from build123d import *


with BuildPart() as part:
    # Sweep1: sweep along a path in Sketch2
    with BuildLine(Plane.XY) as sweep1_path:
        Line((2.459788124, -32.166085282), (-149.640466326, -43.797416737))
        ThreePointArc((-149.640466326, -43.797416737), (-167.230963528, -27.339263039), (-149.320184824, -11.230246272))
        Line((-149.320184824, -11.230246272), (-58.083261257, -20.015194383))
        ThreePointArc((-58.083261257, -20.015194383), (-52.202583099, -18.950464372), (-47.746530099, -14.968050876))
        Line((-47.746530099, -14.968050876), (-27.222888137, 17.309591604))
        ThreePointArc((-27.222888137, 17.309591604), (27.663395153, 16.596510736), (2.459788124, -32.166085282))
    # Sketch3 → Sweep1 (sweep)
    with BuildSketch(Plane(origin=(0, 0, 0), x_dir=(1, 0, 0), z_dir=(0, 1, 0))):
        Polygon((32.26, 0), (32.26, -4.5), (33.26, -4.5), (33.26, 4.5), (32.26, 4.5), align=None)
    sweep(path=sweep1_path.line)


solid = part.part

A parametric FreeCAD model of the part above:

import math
import FreeCAD as App
import Part
import Sketcher
Q = App.Units.Quantity

doc = App.newDocument("Part")
body = doc.addObject("PartDesign::Body", "Body")

# Sketch on XZ plane
sketch1 = body.newObject("Sketcher::SketchObject", "Sketch")
sketch1.AttachmentSupport = (doc.getObject("XZ_Plane"), [""])
sketch1.MapMode = "FlatFace"
sketch1.addGeometry(Part.LineSegment(App.Vector(32.3, 4.5, 0), App.Vector(33.3, 4.5, 0)), False)
sketch1.addGeometry(Part.LineSegment(App.Vector(33.3, 4.5, 0), App.Vector(33.3, -4.5, 0)), False)
sketch1.addGeometry(Part.LineSegment(App.Vector(33.3, -4.5, 0), App.Vector(32.3, -4.5, 0)), False)
sketch1.addGeometry(Part.LineSegment(App.Vector(32.3, -4.5, 0), App.Vector(32.3, 4.5, 0)), False)
sketch1.addConstraint(Sketcher.Constraint("Coincident", 0, 2, 1, 1))
sketch1.addConstraint(Sketcher.Constraint("Coincident", 1, 2, 2, 1))
sketch1.addConstraint(Sketcher.Constraint("Coincident", 2, 2, 3, 1))
sketch1.addConstraint(Sketcher.Constraint("Coincident", 3, 2, 0, 1))
sketch1.addConstraint(Sketcher.Constraint("Horizontal", 0))
sketch1.addConstraint(Sketcher.Constraint("Vertical", 1))
sketch1.addConstraint(Sketcher.Constraint("Horizontal", 2))
sketch1.addConstraint(Sketcher.Constraint("Vertical", 3))
sketch1.addConstraint(Sketcher.Constraint("DistanceX", 0, 1, 0, 2, Q("1 mm")))
sketch1.addConstraint(Sketcher.Constraint("DistanceY", 1, 2, 1, 1, Q("9 mm")))
sketch1.addConstraint(Sketcher.Constraint("DistanceY", -1, 1, 0, 2, Q("4.5 mm")))
sketch1.addConstraint(Sketcher.Constraint("DistanceX", -1, 1, 0, 2, Q("33.26 mm")))

# Sketch on XY plane
sketch2 = body.newObject("Sketcher::SketchObject", "Sketch001")
sketch2.AttachmentSupport = (doc.getObject("XY_Plane"), [""])
sketch2.MapMode = "FlatFace"
sketch2.addGeometry(Part.LineSegment(App.Vector(2, -32, 0), App.Vector(-150, -44, 0)), False)
sketch2.addGeometry(Part.ArcOfCircle(Part.Circle(App.Vector(-151, -28, 0), App.Vector(0, 0, 1), 16), math.radians(85), math.radians(274)), False)
sketch2.addGeometry(Part.LineSegment(App.Vector(-149, -11, 0), App.Vector(-58, -20, 0)), False)
sketch2.addGeometry(Part.ArcOfCircle(Part.Circle(App.Vector(-57, -9, 0), App.Vector(0, 0, 1), 11), math.radians(-95), math.radians(-32)), False)
sketch2.addGeometry(Part.LineSegment(App.Vector(-48, -15, 0), App.Vector(-27, 17, 0)), False)
sketch2.addGeometry(Part.ArcOfCircle(Part.Circle(App.Vector(0, 0, 0), App.Vector(0, 0, 1), 32), math.radians(-86), math.radians(148)), False)
sketch2.addConstraint(Sketcher.Constraint("Tangent", 0, 2, 1, 2))
sketch2.addConstraint(Sketcher.Constraint("Tangent", 1, 1, 2, 1))
sketch2.addConstraint(Sketcher.Constraint("Tangent", 2, 2, 3, 1))
sketch2.addConstraint(Sketcher.Constraint("Tangent", 3, 2, 4, 1))
sketch2.addConstraint(Sketcher.Constraint("Tangent", 4, 2, 5, 2))
sketch2.addConstraint(Sketcher.Constraint("Tangent", 5, 1, 0, 1))
sketch2.addConstraint(Sketcher.Constraint("Coincident", 5, 3, -1, 1))
sketch2.addConstraint(Sketcher.Constraint("Radius", 3, Q("11 mm")))
sketch2.addConstraint(Sketcher.Constraint("Radius", 5, Q("32.26 mm")))
sketch2.addConstraint(Sketcher.Constraint("Radius", 1, Q("16.345 mm")))
sketch2.addConstraint(Sketcher.Constraint("DistanceY", 1, 3, -1, 1, Q("27.5 mm")))
sketch2.addConstraint(Sketcher.Constraint("Distance", 0, Q("152.544339 mm")))
sketch2.addConstraint(Sketcher.Constraint("DistanceX", 3, 3, -1, 1, Q("57.028978 mm")))
sketch2.addConstraint(Sketcher.Constraint("DistanceX", 2, 2, -1, 1, Q("58.083261 mm")))
doc.recompute()

additivepipe = body.newObject("PartDesign::AdditivePipe", "AdditivePipe")
additivepipe.Profile = sketch1
additivepipe.Spine = (sketch2, ["Edge1", "Edge2", "Edge3", "Edge4", "Edge5", "Edge6"])

doc.recompute()
